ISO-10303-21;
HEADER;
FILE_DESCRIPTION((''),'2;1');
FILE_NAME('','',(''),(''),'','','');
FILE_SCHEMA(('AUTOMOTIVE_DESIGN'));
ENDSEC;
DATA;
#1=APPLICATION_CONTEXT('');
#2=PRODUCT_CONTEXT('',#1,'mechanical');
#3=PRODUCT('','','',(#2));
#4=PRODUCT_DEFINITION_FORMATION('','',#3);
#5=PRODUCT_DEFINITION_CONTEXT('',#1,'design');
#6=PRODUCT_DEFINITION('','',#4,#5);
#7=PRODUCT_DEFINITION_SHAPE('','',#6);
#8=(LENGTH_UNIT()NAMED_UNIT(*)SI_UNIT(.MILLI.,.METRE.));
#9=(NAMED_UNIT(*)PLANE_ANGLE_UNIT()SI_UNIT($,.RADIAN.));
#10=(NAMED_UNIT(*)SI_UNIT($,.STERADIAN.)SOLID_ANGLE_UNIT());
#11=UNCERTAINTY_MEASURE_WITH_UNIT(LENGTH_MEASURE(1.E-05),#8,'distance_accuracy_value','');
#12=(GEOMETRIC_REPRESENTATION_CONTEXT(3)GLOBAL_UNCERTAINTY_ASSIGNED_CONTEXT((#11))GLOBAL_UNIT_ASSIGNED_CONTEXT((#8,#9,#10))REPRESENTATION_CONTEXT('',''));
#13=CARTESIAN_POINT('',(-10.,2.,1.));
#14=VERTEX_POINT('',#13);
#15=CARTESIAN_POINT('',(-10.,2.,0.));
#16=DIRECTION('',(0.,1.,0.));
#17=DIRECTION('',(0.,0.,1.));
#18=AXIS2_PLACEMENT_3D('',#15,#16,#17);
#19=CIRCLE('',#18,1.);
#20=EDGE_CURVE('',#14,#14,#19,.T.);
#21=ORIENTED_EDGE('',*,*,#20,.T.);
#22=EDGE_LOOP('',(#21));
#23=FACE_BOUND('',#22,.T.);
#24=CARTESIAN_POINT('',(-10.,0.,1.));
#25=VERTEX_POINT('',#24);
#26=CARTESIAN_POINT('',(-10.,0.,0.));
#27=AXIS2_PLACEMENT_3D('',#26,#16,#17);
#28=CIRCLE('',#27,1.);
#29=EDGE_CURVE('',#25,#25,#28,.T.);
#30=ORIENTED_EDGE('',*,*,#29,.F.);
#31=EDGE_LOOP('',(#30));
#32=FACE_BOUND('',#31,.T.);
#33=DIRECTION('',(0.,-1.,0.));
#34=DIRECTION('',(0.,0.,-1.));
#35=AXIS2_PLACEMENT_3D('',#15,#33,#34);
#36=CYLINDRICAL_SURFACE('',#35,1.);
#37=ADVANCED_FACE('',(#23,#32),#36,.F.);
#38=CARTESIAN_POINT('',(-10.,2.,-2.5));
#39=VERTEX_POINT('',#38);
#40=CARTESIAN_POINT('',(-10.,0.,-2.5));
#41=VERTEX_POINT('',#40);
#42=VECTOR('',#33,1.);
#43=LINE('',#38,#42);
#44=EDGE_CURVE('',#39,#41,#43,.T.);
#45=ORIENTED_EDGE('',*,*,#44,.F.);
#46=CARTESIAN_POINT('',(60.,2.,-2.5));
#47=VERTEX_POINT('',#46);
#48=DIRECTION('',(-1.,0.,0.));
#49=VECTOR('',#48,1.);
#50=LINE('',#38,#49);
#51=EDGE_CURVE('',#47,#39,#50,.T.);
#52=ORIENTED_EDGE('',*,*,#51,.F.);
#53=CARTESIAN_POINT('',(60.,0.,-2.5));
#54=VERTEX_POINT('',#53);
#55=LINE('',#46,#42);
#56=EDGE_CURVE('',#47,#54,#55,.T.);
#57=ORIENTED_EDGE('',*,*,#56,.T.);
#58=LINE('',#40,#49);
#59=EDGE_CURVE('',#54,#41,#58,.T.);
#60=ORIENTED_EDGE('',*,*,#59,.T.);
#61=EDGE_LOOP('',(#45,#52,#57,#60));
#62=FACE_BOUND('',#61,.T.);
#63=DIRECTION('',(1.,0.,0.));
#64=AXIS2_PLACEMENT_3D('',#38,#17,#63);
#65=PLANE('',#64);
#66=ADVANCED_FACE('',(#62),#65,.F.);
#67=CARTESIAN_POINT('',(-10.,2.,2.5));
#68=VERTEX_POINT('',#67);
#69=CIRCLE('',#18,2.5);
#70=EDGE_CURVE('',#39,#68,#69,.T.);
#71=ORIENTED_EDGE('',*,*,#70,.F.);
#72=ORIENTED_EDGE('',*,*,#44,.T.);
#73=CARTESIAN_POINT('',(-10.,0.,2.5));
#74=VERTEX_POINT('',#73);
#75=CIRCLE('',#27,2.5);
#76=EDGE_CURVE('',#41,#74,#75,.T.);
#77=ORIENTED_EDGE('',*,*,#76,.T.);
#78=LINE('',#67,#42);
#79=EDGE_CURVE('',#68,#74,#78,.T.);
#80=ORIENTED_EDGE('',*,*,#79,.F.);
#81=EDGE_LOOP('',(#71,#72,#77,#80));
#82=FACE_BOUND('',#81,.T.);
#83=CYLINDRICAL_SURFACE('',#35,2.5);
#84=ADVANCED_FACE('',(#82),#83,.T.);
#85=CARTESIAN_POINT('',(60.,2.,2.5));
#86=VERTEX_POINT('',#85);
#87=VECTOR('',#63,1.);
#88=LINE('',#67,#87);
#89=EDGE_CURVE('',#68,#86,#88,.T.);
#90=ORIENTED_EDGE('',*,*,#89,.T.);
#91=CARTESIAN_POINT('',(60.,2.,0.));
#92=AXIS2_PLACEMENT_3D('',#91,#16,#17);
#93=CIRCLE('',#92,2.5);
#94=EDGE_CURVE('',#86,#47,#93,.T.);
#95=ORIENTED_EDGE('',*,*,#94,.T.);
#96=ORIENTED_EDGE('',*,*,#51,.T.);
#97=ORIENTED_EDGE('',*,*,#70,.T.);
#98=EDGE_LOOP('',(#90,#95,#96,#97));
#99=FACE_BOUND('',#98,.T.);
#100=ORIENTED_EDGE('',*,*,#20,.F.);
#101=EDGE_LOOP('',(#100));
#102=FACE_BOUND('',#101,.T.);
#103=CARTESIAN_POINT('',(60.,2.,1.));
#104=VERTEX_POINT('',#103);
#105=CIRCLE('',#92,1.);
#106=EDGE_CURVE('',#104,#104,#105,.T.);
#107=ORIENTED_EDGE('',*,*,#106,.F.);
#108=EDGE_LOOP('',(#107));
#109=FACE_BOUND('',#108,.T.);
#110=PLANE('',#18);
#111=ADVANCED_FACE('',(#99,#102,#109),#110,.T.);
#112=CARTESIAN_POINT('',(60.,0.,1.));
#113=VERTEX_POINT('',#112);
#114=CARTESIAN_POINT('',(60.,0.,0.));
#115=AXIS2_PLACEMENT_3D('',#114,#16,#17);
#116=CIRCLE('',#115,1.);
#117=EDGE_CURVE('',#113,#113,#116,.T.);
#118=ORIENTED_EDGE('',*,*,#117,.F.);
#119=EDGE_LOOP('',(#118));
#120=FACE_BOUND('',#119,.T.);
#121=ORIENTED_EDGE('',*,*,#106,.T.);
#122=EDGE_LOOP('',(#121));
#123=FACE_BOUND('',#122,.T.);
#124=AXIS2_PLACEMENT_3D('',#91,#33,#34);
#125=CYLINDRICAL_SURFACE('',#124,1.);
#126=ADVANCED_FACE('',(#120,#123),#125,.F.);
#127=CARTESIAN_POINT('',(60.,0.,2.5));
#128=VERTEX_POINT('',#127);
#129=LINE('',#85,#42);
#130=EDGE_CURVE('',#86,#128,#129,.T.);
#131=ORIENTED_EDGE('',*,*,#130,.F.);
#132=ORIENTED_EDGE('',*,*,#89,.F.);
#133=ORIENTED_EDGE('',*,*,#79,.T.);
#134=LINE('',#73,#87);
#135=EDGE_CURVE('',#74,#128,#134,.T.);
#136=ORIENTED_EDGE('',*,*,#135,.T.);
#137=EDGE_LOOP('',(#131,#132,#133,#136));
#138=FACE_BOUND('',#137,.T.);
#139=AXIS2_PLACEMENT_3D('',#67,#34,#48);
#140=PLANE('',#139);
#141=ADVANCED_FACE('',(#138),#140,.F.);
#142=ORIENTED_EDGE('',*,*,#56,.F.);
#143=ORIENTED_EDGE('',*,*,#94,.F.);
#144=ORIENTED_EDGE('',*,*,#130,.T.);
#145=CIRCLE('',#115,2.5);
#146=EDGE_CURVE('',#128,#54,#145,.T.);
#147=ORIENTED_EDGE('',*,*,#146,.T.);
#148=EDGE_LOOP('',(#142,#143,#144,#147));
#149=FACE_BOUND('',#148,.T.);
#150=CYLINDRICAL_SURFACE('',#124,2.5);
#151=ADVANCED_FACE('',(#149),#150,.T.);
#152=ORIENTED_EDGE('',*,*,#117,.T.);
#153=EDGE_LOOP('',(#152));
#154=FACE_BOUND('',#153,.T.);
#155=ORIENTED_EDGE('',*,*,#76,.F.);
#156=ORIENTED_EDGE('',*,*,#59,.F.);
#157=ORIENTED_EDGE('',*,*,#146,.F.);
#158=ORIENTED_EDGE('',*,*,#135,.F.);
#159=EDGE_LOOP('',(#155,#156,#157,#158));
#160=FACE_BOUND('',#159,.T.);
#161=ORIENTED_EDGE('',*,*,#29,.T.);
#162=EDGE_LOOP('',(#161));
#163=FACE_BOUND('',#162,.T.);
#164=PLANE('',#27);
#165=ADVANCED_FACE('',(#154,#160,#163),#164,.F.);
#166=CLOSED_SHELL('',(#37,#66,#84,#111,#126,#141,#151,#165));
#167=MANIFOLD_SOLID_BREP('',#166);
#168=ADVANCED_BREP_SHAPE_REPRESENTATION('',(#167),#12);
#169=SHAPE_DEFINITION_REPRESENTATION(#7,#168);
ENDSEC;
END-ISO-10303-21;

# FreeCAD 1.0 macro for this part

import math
import FreeCAD as App
import Part
import Sketcher

doc = App.newDocument("Part")
body = doc.addObject("PartDesign::Body", "Body")

sketch1 = body.newObject("Sketcher::SketchObject", "Sketch")
sketch1.AttachmentSupport = (doc.getObject("XZ_Plane"), [""])
sketch1.MapMode = "FlatFace"
sketch1.addGeometry(Part.LineSegment(App.Vector(60, -2.5, 0), App.Vector(-10, -2.5, 0)), False)
sketch1.addGeometry(Part.ArcOfCircle(Part.Circle(App.Vector(-10, 0, 0), App.Vector(0, 0, 1), 2.5), math.radians(90), math.radians(270)), False)
sketch1.addGeometry(Part.LineSegment(App.Vector(-10, 2.5, 0), App.Vector(60, 2.5, 0)), False)
sketch1.addGeometry(Part.ArcOfCircle(Part.Circle(App.Vector(60, 0, 0), App.Vector(0, 0, 1), 2.5), math.radians(-90), math.radians(90)), False)
sketch1.addGeometry(Part.Circle(App.Vector(60, 0, 0), App.Vector(0, 0, 1), 1), False)
sketch1.addGeometry(Part.Circle(App.Vector(-10, 0, 0), App.Vector(0, 0, 1), 1), False)
sketch1.addConstraint(Sketcher.Constraint("Tangent", 0, 2, 1, 2))
sketch1.addConstraint(Sketcher.Constraint("Tangent", 1, 1, 2, 1))
sketch1.addConstraint(Sketcher.Constraint("Tangent", 2, 2, 3, 2))
sketch1.addConstraint(Sketcher.Constraint("Tangent", 3, 1, 0, 1))
sketch1.addConstraint(Sketcher.Constraint("Horizontal", 0))
sketch1.addConstraint(Sketcher.Constraint("Horizontal", 2))
sketch1.addConstraint(Sketcher.Constraint("Coincident", 4, 3, 3, 3))
sketch1.addConstraint(Sketcher.Constraint("Coincident", 5, 3, 1, 3))
sketch1.addConstraint(Sketcher.Constraint("Equal", 4, 5))
sketch1.addConstraint(Sketcher.Constraint("PointOnObject", 1, 3, -1))
sketch1.addConstraint(Sketcher.Constraint("Diameter", 4, 2.0))
sketch1.addConstraint(Sketcher.Constraint("Radius", 1, 2.5))
sketch1.addConstraint(Sketcher.Constraint("DistanceX", 0, 2, 0, 1, 70.0))
sketch1.addConstraint(Sketcher.Constraint("DistanceX", 1, 3, -1, 1, 10.0))
pad1 = body.newObject("PartDesign::Pad", "Pad")
pad1.Profile = sketch1
pad1.Length = 2
pad1.Reversed = True

doc.recompute()
